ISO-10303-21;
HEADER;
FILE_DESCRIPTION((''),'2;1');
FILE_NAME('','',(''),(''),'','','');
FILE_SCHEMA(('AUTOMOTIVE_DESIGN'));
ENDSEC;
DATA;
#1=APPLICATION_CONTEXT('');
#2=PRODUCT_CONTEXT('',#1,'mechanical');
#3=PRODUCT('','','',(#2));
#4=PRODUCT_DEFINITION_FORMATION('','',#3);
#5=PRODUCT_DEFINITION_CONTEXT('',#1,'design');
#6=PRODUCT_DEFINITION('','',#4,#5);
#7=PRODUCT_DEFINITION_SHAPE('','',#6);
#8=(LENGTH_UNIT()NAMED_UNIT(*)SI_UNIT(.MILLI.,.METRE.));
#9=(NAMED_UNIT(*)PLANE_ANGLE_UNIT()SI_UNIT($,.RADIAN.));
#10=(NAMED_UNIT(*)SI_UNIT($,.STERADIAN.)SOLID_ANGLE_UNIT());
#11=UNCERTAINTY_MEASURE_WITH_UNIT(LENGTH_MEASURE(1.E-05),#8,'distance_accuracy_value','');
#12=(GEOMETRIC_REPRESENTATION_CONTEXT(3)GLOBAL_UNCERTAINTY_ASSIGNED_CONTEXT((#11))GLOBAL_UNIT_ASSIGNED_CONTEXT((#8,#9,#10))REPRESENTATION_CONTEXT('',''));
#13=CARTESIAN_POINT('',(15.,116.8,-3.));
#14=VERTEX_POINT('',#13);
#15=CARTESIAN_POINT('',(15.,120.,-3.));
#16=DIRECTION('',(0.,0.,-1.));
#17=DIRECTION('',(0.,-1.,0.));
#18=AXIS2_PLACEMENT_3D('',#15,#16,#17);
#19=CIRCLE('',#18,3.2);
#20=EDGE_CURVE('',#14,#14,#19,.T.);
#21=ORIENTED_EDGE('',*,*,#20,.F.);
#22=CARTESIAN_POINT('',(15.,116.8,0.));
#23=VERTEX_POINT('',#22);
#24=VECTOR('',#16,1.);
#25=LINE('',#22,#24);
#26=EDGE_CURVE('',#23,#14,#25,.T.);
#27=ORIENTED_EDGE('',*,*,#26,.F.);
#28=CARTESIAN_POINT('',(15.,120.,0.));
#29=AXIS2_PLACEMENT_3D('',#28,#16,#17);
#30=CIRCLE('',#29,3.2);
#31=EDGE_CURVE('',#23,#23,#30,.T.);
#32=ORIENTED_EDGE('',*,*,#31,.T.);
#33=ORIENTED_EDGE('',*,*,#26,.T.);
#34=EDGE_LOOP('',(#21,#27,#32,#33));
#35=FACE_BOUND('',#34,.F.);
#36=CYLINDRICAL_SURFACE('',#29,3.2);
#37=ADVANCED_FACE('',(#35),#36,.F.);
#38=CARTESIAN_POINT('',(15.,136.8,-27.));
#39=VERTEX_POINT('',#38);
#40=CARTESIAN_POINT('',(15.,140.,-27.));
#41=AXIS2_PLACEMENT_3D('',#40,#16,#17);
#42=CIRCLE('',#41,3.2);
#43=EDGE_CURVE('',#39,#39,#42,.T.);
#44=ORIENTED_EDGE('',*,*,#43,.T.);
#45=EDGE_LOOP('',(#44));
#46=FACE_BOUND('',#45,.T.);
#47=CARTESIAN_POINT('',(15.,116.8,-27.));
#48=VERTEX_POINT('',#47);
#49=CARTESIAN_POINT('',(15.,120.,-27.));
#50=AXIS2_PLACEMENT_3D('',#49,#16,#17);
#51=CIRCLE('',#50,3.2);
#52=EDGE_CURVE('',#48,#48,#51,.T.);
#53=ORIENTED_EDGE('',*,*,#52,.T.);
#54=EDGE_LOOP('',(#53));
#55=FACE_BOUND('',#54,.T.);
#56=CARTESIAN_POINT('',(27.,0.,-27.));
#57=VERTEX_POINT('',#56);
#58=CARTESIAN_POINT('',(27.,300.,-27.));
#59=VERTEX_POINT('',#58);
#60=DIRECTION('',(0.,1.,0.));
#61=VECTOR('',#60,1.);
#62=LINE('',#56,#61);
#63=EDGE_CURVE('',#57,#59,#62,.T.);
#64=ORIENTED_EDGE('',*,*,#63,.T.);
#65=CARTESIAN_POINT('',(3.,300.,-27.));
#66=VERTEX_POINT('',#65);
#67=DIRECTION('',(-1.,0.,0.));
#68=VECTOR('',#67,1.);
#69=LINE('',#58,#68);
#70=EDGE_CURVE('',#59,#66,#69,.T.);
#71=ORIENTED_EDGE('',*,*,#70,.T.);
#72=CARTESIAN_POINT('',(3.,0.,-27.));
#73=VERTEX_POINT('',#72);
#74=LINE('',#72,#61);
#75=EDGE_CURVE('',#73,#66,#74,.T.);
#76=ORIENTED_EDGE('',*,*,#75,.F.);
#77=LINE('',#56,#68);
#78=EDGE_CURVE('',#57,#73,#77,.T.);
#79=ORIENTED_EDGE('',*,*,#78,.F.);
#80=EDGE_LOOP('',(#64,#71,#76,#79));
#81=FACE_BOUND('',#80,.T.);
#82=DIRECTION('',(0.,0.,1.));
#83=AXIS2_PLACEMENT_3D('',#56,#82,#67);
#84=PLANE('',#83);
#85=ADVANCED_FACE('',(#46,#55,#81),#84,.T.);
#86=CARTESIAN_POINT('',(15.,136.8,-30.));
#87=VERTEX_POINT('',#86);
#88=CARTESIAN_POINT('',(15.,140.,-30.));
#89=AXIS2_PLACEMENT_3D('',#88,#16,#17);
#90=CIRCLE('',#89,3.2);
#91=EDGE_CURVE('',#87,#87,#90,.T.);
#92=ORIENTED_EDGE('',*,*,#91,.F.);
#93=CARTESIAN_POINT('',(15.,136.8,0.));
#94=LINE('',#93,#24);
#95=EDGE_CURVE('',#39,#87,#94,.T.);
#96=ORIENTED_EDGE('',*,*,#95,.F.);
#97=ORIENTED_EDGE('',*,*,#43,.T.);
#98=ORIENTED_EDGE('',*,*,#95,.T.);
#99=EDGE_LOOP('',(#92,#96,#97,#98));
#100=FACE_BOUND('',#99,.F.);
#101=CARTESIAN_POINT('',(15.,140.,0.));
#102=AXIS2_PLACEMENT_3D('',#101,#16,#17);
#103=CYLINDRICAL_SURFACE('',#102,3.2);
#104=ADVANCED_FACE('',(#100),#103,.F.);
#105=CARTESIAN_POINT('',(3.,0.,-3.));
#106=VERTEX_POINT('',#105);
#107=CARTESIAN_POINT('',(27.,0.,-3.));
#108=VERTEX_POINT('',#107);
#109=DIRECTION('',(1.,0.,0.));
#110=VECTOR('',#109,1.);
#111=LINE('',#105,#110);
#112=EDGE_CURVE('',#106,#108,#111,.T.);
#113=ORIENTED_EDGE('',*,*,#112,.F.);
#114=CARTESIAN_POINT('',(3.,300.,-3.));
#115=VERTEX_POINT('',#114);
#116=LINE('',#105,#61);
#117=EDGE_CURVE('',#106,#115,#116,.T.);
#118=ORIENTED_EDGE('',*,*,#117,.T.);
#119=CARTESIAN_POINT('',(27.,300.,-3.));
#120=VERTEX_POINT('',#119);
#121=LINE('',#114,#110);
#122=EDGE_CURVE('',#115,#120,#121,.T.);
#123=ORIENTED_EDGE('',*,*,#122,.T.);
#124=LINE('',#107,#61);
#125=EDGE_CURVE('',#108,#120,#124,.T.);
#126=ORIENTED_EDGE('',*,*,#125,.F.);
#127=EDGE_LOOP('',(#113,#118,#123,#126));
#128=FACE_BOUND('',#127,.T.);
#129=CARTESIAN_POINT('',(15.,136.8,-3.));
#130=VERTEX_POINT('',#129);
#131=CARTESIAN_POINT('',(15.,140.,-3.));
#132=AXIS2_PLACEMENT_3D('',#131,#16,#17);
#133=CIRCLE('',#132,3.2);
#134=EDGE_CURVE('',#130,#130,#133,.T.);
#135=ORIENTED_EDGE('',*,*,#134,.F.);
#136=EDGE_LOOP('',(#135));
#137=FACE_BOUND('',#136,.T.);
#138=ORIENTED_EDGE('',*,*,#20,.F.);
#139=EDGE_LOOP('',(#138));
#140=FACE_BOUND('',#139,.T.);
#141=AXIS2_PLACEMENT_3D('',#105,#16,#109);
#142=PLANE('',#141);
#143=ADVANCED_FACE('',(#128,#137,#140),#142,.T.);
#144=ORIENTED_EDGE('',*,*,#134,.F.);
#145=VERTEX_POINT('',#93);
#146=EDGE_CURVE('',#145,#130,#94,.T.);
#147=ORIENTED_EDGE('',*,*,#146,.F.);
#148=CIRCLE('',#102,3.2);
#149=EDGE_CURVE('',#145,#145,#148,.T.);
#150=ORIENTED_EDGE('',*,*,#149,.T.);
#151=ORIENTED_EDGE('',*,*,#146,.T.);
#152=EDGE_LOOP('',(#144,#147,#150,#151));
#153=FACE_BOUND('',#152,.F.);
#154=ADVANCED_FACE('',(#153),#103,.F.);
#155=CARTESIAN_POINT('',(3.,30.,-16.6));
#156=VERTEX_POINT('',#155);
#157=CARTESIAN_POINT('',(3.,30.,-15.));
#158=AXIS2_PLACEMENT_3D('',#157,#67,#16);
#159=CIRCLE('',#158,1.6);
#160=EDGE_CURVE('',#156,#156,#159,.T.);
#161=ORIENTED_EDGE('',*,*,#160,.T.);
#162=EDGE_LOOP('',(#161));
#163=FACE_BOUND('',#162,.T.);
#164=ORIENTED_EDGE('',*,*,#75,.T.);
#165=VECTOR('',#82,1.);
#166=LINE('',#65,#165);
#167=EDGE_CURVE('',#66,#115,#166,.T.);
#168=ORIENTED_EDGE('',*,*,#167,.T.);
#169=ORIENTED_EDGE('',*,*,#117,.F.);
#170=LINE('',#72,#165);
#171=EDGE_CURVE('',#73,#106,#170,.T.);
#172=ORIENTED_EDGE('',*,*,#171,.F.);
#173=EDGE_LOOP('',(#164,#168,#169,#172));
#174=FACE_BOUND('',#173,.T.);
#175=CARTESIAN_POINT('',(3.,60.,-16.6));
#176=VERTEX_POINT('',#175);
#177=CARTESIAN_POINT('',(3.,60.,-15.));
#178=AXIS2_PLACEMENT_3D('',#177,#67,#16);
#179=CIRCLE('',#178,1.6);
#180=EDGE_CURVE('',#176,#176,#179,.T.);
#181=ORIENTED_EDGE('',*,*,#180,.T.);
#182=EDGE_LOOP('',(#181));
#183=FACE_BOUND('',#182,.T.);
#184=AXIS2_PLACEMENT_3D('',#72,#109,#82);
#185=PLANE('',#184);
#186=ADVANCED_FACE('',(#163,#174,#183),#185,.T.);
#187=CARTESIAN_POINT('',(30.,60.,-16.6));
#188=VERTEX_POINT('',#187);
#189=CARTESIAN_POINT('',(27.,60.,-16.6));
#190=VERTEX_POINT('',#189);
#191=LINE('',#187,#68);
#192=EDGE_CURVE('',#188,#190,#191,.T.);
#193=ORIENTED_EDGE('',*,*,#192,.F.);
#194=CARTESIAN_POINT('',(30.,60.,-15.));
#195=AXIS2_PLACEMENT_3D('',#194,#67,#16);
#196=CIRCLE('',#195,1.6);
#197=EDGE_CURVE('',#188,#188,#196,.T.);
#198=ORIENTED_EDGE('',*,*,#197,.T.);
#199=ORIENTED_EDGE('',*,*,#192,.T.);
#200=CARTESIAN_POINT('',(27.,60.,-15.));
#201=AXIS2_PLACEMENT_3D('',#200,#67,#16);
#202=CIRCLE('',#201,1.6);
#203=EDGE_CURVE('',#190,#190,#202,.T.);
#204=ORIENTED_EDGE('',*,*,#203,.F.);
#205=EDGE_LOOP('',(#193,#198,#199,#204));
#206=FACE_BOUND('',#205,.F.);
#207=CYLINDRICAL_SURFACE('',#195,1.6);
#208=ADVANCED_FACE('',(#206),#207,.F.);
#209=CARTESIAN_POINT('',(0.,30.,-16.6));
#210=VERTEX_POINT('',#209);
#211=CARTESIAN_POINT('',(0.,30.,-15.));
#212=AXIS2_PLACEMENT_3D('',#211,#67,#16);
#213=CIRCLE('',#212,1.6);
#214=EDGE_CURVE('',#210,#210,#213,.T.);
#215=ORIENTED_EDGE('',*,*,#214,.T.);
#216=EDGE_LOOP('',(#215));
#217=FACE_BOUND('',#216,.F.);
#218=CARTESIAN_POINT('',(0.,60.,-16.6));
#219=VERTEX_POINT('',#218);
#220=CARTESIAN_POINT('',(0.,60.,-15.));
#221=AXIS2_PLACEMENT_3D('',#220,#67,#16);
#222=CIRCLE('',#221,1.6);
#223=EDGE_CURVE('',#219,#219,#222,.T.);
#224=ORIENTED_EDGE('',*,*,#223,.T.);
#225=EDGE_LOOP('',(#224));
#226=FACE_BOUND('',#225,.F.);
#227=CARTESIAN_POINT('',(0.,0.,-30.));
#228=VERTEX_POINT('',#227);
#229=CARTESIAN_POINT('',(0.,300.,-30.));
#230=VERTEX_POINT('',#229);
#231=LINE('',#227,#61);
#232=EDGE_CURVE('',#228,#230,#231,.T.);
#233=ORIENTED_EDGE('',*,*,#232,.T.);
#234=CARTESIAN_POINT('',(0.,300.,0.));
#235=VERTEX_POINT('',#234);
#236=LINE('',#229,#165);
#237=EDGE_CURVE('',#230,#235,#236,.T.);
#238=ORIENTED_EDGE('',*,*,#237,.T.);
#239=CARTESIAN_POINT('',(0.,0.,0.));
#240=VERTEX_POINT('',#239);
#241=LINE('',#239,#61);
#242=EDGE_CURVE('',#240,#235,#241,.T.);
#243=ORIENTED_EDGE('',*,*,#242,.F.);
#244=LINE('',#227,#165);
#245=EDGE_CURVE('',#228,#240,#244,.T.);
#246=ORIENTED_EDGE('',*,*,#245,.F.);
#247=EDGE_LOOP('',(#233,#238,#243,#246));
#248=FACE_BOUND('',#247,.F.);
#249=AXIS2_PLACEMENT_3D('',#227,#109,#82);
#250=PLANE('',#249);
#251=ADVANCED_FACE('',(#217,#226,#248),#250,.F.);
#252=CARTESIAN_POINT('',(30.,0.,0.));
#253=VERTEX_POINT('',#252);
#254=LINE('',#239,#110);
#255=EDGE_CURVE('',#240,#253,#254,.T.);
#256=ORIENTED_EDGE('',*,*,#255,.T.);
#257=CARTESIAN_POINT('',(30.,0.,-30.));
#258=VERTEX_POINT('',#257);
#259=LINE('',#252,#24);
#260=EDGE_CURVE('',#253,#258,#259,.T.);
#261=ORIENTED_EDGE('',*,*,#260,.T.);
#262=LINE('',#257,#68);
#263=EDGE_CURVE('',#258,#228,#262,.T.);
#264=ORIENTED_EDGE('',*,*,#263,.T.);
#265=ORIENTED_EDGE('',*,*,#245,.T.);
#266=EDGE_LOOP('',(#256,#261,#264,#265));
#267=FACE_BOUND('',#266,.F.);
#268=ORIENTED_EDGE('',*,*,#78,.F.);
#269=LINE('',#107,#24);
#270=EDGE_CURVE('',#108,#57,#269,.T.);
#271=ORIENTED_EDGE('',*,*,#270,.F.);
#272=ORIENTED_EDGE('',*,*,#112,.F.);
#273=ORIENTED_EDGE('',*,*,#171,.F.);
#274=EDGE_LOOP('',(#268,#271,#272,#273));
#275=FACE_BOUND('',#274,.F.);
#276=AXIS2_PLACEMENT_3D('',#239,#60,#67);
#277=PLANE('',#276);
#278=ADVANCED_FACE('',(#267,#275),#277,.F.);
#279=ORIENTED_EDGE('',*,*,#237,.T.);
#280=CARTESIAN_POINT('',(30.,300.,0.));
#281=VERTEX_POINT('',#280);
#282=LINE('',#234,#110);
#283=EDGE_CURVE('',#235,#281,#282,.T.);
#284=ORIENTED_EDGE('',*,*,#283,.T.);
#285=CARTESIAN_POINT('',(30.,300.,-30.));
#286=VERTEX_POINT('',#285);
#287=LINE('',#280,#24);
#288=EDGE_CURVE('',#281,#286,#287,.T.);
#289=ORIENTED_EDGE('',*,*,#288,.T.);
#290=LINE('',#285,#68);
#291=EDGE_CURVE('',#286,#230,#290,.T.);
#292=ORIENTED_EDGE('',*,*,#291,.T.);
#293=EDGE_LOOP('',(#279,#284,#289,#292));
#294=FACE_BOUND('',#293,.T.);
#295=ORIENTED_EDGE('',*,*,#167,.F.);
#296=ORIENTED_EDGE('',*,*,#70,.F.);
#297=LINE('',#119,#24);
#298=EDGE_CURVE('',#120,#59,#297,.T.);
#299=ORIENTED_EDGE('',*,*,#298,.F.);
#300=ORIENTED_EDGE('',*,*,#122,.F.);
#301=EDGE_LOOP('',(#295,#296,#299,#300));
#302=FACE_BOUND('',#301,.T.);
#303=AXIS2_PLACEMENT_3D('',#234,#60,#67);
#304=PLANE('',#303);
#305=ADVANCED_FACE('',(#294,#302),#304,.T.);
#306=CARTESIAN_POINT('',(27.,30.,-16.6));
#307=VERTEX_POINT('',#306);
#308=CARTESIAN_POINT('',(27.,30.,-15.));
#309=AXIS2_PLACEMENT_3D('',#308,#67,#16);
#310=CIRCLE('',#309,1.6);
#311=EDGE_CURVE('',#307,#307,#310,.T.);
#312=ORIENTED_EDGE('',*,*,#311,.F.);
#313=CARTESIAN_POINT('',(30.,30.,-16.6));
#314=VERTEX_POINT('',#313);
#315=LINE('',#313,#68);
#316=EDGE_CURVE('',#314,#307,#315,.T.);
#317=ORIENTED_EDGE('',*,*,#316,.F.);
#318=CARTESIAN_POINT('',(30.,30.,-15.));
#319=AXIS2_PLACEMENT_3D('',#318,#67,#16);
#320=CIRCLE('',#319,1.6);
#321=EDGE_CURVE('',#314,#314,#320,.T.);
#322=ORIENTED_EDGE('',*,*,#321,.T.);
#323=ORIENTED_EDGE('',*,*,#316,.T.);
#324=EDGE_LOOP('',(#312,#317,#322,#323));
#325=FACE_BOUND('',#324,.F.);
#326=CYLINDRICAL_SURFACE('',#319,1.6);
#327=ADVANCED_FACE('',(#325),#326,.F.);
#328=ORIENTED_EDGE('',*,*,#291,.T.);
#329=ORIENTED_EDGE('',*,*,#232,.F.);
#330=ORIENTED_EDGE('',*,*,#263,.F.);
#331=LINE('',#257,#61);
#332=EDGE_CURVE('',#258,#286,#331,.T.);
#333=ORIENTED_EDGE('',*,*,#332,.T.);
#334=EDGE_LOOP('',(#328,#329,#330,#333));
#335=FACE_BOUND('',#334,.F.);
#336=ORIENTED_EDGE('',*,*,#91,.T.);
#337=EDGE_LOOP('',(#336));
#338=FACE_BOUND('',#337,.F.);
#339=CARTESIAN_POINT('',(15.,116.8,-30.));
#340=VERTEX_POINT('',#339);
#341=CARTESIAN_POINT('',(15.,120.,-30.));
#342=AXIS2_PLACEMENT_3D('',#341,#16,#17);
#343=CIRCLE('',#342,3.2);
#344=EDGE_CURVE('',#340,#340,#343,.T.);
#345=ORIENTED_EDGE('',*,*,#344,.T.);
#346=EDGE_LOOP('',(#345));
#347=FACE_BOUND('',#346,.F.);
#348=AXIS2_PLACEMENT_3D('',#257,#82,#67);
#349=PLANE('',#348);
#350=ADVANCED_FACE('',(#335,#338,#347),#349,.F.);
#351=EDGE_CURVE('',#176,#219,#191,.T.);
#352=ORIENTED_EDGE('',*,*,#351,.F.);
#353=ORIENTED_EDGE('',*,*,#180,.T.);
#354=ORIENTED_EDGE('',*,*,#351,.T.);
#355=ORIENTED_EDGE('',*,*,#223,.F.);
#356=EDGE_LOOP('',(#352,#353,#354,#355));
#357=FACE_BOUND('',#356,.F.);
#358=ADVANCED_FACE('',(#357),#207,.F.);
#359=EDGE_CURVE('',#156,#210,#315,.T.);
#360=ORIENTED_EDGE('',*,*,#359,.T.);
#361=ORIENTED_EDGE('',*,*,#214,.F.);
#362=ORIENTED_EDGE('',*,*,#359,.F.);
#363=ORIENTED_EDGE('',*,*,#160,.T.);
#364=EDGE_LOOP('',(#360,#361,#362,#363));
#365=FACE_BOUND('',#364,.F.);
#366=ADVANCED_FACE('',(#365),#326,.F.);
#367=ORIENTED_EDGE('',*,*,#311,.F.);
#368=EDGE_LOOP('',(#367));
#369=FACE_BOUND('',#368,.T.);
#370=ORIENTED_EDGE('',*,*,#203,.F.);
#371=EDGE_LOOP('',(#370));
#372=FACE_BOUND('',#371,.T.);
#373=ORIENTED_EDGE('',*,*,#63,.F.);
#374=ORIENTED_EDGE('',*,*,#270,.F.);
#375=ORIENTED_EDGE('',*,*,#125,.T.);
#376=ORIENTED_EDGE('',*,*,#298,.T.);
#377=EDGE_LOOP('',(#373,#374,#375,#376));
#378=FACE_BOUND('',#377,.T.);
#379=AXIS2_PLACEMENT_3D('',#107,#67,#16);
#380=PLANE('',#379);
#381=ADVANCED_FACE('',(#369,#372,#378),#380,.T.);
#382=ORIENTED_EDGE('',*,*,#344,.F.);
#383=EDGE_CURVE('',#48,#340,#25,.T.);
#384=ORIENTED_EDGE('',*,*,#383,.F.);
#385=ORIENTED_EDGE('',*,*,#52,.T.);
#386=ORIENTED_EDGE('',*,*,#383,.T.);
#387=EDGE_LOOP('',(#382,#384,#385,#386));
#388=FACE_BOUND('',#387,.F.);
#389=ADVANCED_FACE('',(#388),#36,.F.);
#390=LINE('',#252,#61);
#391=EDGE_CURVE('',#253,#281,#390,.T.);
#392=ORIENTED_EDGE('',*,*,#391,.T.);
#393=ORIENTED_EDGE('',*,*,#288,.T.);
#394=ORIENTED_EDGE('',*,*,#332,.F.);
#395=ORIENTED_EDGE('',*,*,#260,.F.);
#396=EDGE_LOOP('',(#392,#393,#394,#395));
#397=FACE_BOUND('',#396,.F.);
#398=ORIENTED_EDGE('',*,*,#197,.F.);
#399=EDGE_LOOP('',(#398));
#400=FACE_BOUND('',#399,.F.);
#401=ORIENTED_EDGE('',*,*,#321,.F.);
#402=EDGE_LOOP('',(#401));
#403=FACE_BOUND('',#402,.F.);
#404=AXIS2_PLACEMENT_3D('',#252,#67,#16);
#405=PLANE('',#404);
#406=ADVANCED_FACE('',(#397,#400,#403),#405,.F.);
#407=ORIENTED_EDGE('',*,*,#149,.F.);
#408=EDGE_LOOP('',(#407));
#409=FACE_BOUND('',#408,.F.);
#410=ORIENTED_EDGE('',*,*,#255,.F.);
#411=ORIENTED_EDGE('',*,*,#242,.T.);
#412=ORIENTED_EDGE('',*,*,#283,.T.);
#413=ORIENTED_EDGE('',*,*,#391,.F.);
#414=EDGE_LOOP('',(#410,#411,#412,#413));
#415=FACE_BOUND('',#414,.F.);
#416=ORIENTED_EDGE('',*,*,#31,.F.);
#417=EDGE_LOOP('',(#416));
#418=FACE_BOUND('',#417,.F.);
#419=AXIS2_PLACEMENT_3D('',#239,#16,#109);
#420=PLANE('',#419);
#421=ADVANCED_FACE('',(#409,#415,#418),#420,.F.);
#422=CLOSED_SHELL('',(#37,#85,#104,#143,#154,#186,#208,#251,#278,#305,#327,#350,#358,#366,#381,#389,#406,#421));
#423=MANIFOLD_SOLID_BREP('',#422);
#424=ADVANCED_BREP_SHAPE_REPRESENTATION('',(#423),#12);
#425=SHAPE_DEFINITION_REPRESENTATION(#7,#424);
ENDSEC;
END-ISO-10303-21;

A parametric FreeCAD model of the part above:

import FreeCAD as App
import Part
import Sketcher

V = App.Vector

doc = App.newDocument("Part")
body = doc.addObject("PartDesign::Body", "Body")

# Sketch on XZ plane
sketch1 = body.newObject("Sketcher::SketchObject", "Sketch")
sketch1.AttachmentSupport = (doc.getObject("XZ_Plane"), [""])
sketch1.MapMode = "FlatFace"
sketch1.addGeometry([
    Part.LineSegment(V(0, -30, 0), V(0, 0, 0)),  # 0
    Part.LineSegment(V(0, 0, 0), V(30, 0, 0)),  # 1
    Part.LineSegment(V(30, 0, 0), V(30, -30, 0)),  # 2
    Part.LineSegment(V(30, -30, 0), V(0, -30, 0)),  # 3
    Part.LineSegment(V(27, -3, 0), V(3, -3, 0)),  # 4
    Part.LineSegment(V(3, -3, 0), V(3, -27, 0)),  # 5
    Part.LineSegment(V(3, -27, 0), V(27, -27, 0)),  # 6
    Part.LineSegment(V(27, -27, 0), V(27, -3, 0)),  # 7
], False)
sketch1.addConstraint([
    Sketcher.Constraint("Coincident", 0, 2, 1, 1),
    Sketcher.Constraint("Coincident", 1, 2, 2, 1),
    Sketcher.Constraint("Coincident", 2, 2, 3, 1),
    Sketcher.Constraint("Coincident", 3, 2, 0, 1),
    Sketcher.Constraint("Coincident", 4, 2, 5, 1),
    Sketcher.Constraint("Coincident", 5, 2, 6, 1),
    Sketcher.Constraint("Coincident", 6, 2, 7, 1),
    Sketcher.Constraint("Coincident", 7, 2, 4, 1),
    Sketcher.Constraint("Vertical", 0),
    Sketcher.Constraint("Horizontal", 1),
    Sketcher.Constraint("Vertical", 2),
    Sketcher.Constraint("Horizontal", 3),
    Sketcher.Constraint("Horizontal", 4),
    Sketcher.Constraint("Vertical", 5),
    Sketcher.Constraint("Horizontal", 6),
    Sketcher.Constraint("Vertical", 7),
    Sketcher.Constraint("Coincident", 0, 2, -1, 1),
    Sketcher.Constraint("Equal", 3, 0),
    Sketcher.Constraint("Equal", 6, 5),
    Sketcher.Constraint("DistanceX", 1, 1, 1, 2, 30.0),
    Sketcher.Constraint("DistanceX", 4, 2, 4, 1, 24.0),
    Sketcher.Constraint("DistanceX", -1, 1, 4, 2, 3.0),
    Sketcher.Constraint("DistanceY", 4, 2, -1, 1, 3.0),
])
pad1 = body.newObject("PartDesign::Pad", "Pad")
pad1.Profile = sketch1
pad1.Length = 300
pad1.Reversed = True

# Sketch on YZ plane
sketch2 = body.newObject("Sketcher::SketchObject", "Sketch001")
sketch2.AttachmentSupport = (doc.getObject("YZ_Plane"), [""])
sketch2.MapMode = "FlatFace"
sketch2.AttachmentOffset = App.Placement(V(0, 0, 30), App.Rotation())
sketch2.addGeometry([
    Part.Circle(V(30, -15, 0), V(0, 0, 1), 1.6),
    Part.Circle(V(60, -15, 0), V(0, 0, 1), 1.6),
], False)
sketch2.addConstraint([
    Sketcher.Constraint("Equal", 0, 1),
    Sketcher.Constraint("Horizontal", 0, 3, 1, 3),
    Sketcher.Constraint("Diameter", 0, 3.2),
    Sketcher.Constraint("DistanceX", -1, 1, 0, 3, 30.0),
    Sketcher.Constraint("DistanceY", 0, 3, -1, 1, 15.0),
    Sketcher.Constraint("DistanceX", -1, 1, 1, 3, 60.0),
])
doc.recompute()
hole = body.newObject("PartDesign::Hole", "Hole")
hole.Profile = sketch2
hole.ThreadType = "None"
hole.Diameter = 3.2
hole.DepthType = "ThroughAll"

# Sketch on XY plane
sketch3 = body.newObject("Sketcher::SketchObject", "Sketch002")
sketch3.AttachmentSupport = (doc.getObject("XY_Plane"), [""])
sketch3.MapMode = "FlatFace"
sketch3.addGeometry([
    Part.Circle(V(15, 120, 0), V(0, 0, 1), 3.2),
    Part.Circle(V(15, 140, 0), V(0, 0, 1), 3.2),
], False)
sketch3.addConstraint([
    Sketcher.Constraint("Equal", 0, 1),
    Sketcher.Constraint("Vertical", 0, 3, 1, 3),
    Sketcher.Constraint("Diameter", 0, 6.4),
    Sketcher.Constraint("DistanceX", -1, 1, 0, 3, 15.0),
    Sketcher.Constraint("DistanceY", -1, 1, 0, 3, 120.0),
    Sketcher.Constraint("DistanceY", -1, 1, 1, 3, 140.0),
])
doc.recompute()
hole2 = body.newObject("PartDesign::Hole", "Hole001")
hole2.Profile = sketch3
hole2.ThreadType = "None"
hole2.Diameter = 6.4
hole2.DepthType = "ThroughAll"

doc.recompute()
